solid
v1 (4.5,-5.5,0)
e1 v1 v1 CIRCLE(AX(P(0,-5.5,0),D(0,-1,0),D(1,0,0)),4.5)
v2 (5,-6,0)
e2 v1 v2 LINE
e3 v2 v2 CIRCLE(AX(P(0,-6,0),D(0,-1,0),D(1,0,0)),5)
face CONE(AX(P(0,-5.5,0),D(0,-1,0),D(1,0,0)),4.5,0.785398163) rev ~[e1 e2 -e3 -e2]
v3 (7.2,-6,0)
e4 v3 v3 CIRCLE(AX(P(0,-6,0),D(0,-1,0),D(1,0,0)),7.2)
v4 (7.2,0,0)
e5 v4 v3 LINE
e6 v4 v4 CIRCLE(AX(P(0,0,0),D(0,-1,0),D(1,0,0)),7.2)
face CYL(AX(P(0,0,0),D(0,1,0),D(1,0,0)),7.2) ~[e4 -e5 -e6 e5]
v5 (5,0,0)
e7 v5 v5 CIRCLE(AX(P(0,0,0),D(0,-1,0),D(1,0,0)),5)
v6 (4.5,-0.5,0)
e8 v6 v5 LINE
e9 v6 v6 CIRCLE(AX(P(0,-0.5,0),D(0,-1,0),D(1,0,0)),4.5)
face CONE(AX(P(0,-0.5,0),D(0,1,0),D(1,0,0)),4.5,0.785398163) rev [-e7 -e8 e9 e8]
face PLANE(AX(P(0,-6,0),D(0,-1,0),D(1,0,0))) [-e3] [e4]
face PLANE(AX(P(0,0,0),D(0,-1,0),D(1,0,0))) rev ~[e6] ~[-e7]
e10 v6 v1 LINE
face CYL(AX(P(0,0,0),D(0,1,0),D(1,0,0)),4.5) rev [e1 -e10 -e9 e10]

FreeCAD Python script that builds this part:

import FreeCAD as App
import Part
import Sketcher
from FreeCAD import Vector


def edges_at(feature, points):
    """Names of the edges that pass closest to the given points."""
    edges = feature.Shape.Edges
    near = lambda p: min(range(len(edges)), key=lambda i: edges[i].distToShape(Part.Vertex(*p))[0])
    return sorted({f"Edge{near(p) + 1}" for p in points})

doc = App.newDocument("Part")
body = doc.addObject("PartDesign::Body", "Body")

sketch1 = body.newObject("Sketcher::SketchObject", "Sketch")
sketch1.AttachmentSupport = (doc.getObject("XZ_Plane"), [""])
sketch1.MapMode = "FlatFace"
sketch1.addGeometry([
    Part.Circle(Vector(0, 0, 0), Vector(0, 0, 1), 7.2),
    Part.Circle(Vector(0, 0, 0), Vector(0, 0, 1), 4.5),
], False)
sketch1.addConstraint([
    Sketcher.Constraint("Coincident", 0, 3, -1, 1),
    Sketcher.Constraint("Coincident", 1, 3, -1, 1),
    Sketcher.Constraint("Diameter", 1, 9.0),
    Sketcher.Constraint("Diameter", 0, 14.4),
])
pad1 = body.newObject("PartDesign::Pad", "Pad")
pad1.Profile = sketch1
pad1.Length = 6
doc.recompute()

chamfer = body.newObject("PartDesign::Chamfer", "Chamfer")
chamfer.Base = (pad1, edges_at(pad1, [(-4.5, -6, 0), (-4.5, 0, 0)]))
chamfer.Size = 0.5

doc.recompute()
